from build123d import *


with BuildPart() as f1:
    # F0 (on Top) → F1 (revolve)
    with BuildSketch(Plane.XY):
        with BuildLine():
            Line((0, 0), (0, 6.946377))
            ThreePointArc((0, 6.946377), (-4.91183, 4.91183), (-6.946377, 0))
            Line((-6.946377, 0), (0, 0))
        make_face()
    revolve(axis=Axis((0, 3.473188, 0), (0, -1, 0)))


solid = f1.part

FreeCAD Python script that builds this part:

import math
import FreeCAD as App
import Part
import Sketcher
from FreeCAD import Vector
Q = App.Units.Quantity

doc = App.newDocument("Part")
params = doc.addObject("Spreadsheet::Sheet", "Params")
for row, (alias, value) in enumerate([
    ("revolution_angle", "360 deg"),
], start=1):
    params.set(f"A{row}", alias)
    params.set(f"B{row}", "=" + value)
    params.setAlias(f"B{row}", alias)

body = doc.addObject("PartDesign::Body", "Body")

# Sketch on XY plane
sketch1 = body.newObject("Sketcher::SketchObject", "Sketch")
sketch1.AttachmentSupport = (doc.getObject("XY_Plane"), [""])
sketch1.MapMode = "FlatFace"
sketch1.addGeometry([
    Part.LineSegment(Vector(0, 0, 0), Vector(0, 6.946377, 0)),
    Part.ArcOfCircle(Part.Circle(Vector(0.000001, -0.000001, 0), Vector(0, 0, 1), 6.946378), math.radians(90.000008), math.radians(179.999992)),
    Part.LineSegment(Vector(-6.946377, 0, 0), Vector(0, 0, 0)),
], False)
sketch1.addConstraint([
    Sketcher.Constraint("Coincident", 0, 2, 1, 1),
    Sketcher.Constraint("Coincident", 1, 2, 2, 1),
    Sketcher.Constraint("Coincident", 2, 2, 0, 1),
    Sketcher.Constraint("Vertical", 0),
    Sketcher.Constraint("Horizontal", 2),
    Sketcher.Constraint("Coincident", 1, 3, -1, 1),
    Sketcher.Constraint("Coincident", 2, 2, -1, 1),
    Sketcher.Constraint("Radius", 1, Q("6.946378 mm")),
])
revolution = body.newObject("PartDesign::Revolution", "Revolution")
revolution.Profile = sketch1
revolution.ReferenceAxis = (sketch1, ["V_Axis"])
revolution.setExpression("Angle", "Params.revolution_angle")

doc.recompute()
